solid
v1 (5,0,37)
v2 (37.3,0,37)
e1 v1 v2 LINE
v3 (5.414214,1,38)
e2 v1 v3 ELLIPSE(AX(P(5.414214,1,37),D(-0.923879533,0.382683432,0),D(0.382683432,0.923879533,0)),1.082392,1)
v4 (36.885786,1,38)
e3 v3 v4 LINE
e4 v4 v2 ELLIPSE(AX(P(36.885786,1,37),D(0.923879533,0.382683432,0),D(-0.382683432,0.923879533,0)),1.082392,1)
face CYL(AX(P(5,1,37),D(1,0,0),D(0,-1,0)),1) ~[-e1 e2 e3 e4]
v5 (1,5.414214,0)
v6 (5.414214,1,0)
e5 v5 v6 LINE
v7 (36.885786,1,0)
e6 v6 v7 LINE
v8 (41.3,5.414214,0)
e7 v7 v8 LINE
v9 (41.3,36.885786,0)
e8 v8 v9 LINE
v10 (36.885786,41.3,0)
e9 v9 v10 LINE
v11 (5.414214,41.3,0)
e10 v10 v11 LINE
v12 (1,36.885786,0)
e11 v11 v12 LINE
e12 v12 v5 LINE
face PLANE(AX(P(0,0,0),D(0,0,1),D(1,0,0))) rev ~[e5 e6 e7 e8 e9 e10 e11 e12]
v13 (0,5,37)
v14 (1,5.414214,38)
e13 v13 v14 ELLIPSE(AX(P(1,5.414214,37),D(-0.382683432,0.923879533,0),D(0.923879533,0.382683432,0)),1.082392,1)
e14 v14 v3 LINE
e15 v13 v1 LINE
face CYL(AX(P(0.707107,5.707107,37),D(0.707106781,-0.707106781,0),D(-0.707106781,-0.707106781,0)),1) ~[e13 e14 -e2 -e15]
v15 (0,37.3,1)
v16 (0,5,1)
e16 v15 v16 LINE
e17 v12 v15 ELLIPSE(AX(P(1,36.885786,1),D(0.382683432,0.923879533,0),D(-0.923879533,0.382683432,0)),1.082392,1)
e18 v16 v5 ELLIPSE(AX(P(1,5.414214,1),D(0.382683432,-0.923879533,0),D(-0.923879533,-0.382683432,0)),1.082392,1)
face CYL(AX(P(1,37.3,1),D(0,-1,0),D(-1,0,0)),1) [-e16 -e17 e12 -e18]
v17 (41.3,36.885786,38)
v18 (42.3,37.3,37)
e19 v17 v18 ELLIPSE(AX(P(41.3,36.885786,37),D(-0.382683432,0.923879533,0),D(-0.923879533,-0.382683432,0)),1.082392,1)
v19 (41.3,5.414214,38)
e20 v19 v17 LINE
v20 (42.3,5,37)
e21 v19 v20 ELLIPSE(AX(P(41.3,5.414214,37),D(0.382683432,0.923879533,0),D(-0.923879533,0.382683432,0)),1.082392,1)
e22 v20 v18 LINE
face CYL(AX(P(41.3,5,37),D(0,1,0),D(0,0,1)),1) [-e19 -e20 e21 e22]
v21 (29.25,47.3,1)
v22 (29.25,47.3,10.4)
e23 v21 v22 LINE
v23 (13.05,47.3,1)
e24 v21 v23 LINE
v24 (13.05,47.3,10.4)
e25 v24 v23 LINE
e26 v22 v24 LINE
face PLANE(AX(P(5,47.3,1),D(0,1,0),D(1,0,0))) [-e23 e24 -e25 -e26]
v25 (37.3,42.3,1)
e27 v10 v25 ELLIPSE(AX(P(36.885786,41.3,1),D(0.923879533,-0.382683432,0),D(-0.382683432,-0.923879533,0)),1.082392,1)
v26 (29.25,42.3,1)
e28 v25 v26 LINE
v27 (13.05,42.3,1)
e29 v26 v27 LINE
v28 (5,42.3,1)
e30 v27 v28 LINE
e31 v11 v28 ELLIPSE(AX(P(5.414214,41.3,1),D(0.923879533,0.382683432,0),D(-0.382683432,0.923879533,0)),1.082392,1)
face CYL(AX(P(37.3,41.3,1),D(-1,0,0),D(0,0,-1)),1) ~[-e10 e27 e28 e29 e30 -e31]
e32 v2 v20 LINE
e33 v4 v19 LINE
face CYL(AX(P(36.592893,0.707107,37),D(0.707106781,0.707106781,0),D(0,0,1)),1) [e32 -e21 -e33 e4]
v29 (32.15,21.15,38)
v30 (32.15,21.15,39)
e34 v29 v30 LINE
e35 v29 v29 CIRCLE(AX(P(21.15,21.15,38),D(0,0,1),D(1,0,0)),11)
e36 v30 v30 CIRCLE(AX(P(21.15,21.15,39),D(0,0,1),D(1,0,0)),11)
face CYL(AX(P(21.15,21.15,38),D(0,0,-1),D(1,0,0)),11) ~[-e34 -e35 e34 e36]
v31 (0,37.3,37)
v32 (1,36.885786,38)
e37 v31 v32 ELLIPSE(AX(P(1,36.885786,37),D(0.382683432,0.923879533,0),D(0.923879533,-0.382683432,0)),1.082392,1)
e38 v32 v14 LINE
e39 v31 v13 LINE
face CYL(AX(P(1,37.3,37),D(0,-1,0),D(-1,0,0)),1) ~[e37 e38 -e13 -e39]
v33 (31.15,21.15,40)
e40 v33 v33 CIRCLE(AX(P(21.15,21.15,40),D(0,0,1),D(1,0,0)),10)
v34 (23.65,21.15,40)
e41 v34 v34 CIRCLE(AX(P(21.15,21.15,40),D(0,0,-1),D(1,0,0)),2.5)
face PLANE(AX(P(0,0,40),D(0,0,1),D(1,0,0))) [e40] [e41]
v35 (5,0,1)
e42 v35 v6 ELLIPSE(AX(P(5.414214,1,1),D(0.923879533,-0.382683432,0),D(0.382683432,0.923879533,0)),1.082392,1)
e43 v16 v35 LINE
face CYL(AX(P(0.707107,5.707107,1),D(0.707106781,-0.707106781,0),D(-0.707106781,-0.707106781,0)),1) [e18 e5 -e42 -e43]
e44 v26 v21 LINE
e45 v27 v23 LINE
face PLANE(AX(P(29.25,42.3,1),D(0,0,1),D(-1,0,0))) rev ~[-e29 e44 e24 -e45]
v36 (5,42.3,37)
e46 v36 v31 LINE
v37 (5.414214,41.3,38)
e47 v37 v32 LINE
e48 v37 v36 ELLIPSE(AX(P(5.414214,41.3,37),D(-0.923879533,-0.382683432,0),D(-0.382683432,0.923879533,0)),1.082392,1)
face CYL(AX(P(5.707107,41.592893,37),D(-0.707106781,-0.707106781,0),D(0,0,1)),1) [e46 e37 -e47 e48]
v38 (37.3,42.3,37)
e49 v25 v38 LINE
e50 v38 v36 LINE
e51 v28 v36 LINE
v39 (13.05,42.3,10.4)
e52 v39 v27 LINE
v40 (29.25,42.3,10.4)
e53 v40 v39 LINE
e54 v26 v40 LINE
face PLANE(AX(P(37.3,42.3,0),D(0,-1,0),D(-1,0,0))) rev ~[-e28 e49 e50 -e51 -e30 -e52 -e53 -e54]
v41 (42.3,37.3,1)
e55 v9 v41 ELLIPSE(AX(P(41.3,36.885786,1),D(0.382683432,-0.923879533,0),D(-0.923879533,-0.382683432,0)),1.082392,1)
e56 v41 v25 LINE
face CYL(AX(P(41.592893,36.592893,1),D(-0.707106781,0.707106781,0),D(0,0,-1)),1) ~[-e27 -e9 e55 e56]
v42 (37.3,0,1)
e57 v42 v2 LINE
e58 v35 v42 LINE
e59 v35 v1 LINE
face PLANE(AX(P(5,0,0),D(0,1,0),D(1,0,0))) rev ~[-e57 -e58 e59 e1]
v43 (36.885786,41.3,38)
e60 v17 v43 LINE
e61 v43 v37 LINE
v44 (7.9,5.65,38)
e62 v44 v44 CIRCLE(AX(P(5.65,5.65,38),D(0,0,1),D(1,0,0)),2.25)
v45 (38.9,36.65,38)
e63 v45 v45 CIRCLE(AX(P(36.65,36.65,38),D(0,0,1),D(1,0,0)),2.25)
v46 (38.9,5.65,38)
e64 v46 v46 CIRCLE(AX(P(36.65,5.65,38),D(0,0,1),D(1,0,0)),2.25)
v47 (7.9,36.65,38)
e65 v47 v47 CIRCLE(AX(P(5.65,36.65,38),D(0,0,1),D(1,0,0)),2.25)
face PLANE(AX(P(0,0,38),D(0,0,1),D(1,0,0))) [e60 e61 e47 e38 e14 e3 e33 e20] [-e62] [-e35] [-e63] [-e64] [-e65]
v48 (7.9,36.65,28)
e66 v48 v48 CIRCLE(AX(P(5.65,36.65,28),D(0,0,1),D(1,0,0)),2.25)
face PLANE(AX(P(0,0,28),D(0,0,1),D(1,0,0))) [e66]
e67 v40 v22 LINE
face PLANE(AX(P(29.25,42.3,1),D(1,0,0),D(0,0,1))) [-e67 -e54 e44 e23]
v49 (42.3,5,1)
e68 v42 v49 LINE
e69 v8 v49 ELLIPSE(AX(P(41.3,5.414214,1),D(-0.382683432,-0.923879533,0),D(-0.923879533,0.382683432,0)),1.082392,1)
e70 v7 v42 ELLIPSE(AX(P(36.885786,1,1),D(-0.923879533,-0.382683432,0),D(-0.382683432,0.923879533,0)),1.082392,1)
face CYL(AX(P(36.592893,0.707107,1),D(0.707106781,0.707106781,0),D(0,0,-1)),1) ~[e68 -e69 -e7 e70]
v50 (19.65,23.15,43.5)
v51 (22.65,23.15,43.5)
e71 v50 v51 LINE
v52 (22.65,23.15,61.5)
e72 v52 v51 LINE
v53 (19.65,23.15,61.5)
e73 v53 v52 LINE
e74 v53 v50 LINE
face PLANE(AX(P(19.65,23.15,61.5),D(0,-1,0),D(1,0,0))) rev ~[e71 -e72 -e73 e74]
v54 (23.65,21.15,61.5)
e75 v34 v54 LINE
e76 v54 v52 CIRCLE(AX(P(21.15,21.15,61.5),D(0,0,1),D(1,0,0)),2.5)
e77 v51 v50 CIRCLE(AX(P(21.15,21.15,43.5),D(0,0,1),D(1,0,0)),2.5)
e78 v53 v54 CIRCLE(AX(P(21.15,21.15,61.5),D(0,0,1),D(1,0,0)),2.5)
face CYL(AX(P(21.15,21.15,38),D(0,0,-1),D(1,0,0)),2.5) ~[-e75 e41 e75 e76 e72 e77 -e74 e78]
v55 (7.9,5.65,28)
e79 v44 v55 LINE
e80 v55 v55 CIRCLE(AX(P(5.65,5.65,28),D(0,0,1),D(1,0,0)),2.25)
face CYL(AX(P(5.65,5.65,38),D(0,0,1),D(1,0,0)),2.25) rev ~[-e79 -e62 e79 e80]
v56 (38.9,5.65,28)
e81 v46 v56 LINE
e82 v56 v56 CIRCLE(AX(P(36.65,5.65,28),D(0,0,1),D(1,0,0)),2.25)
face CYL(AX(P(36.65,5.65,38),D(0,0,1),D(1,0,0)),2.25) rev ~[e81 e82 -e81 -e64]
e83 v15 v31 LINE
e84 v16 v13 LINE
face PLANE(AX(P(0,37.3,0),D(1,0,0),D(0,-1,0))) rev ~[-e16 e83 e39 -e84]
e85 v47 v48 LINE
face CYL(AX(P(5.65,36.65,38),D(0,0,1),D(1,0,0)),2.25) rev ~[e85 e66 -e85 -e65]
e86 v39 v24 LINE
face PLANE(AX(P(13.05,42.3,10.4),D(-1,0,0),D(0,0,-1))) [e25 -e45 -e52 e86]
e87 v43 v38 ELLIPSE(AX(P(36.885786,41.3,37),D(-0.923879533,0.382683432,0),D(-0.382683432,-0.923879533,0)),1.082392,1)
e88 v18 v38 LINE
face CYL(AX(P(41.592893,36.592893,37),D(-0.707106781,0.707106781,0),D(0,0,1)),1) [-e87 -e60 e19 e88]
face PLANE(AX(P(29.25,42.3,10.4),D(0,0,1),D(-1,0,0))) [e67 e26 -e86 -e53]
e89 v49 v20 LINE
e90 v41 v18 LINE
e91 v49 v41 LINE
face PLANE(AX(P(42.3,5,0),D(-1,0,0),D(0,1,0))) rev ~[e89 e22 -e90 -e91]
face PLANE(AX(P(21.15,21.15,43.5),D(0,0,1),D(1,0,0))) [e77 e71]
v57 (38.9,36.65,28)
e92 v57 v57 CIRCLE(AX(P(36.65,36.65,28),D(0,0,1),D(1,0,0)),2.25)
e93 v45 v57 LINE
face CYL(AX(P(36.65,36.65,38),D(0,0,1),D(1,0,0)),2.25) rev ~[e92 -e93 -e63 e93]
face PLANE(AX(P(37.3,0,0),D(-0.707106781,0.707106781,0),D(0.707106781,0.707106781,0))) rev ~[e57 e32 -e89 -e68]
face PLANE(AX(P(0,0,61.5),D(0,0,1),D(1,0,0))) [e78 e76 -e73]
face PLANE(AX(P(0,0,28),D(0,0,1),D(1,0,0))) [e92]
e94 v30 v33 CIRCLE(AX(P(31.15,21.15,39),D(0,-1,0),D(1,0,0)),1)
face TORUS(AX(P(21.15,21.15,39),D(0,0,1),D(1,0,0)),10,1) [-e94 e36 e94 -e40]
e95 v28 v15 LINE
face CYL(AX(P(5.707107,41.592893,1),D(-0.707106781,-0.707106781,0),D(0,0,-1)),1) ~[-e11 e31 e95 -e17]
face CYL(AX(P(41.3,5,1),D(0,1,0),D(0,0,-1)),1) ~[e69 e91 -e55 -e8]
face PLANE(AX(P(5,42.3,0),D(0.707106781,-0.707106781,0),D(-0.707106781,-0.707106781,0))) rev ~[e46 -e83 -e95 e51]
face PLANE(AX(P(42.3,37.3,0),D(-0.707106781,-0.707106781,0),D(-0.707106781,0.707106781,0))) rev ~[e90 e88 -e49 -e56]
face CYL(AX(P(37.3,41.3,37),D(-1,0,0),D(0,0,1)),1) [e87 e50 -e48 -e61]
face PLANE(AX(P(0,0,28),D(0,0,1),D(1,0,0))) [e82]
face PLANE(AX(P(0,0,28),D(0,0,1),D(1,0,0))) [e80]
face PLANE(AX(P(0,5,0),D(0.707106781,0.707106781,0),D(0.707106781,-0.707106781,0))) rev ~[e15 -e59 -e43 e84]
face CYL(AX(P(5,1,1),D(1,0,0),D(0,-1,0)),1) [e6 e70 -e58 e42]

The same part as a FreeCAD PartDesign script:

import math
import FreeCAD as App
import Part
import Sketcher
from FreeCAD import Vector
Q = App.Units.Quantity


def edges_at(feature, points):
    """Names of the edges that pass closest to the given points."""
    edges = feature.Shape.Edges
    near = lambda p: min(range(len(edges)), key=lambda i: edges[i].distToShape(Part.Vertex(*p))[0])
    return sorted({f"Edge{near(p) + 1}" for p in points})


def add_polygon(sketch, points):
    """Adds a closed chain of lines whose ends are joined by coincident constraints."""
    first, n = sketch.GeometryCount, len(points)
    for a, b in zip(points, points[1:] + points[:1]):
        sketch.addGeometry(Part.LineSegment(App.Vector(*a, 0), App.Vector(*b, 0)), False)
    for i in range(n):
        sketch.addConstraint(Sketcher.Constraint("Coincident", first + i, 2, first + (i + 1) % n, 1))

doc = App.newDocument("Part")
params = doc.addObject("Spreadsheet::Sheet", "Params")
for row, (alias, value) in enumerate([
    ("pad1_length", "38 mm"),
    ("sketch2_diameter", "4.5 mm"),
    ("pocket1_length", "10 mm"),
    ("sketch3_diameter", "22 mm"),
    ("pad2_length", "2 mm"),
    ("fillet_radius", "1 mm"),
    ("sketch4_diameter", "5 mm"),
    ("pad3_length", "23.5 mm"),
    ("sketch5_radius", "2.5 mm"),
    ("pocket2_length", "18 mm"),
    ("sketch6_width", "16.2 mm"),
    ("sketch6_height", "9.4 mm"),
    ("pad4_length", "5 mm"),
], start=1):
    params.set(f"A{row}", alias)
    params.set(f"B{row}", "=" + value)
    params.setAlias(f"B{row}", alias)

body = doc.addObject("PartDesign::Body", "Body")

sketch1 = body.newObject("Sketcher::SketchObject", "Sketch")
sketch1.AttachmentSupport = (doc.getObject("XY_Plane"), [""])
sketch1.MapMode = "FlatFace"
add_polygon(sketch1, [(0, 5), (5, 0), (37, 0), (42, 5), (42, 37), (37, 42), (5, 42), (0, 37)])
sketch1.addConstraint([
    Sketcher.Constraint("Horizontal", 1),
    Sketcher.Constraint("Vertical", 3),
    Sketcher.Constraint("Horizontal", 5),
    Sketcher.Constraint("Vertical", 7),
    Sketcher.Constraint("PointOnObject", 0, 2, -1),
    Sketcher.Constraint("PointOnObject", 6, 2, -2),
    Sketcher.Constraint("Perpendicular", 0, 2),
    Sketcher.Constraint("Perpendicular", 2, 4),
    Sketcher.Constraint("Perpendicular", 4, 6),
    Sketcher.Constraint("Horizontal", 3, 2, 6, 2),
    Sketcher.Constraint("Horizontal", 2, 2, 7, 2),
    Sketcher.Constraint("Vertical", 1, 2, 4, 2),
    Sketcher.Constraint("Vertical", 0, 2, 5, 2),
    Sketcher.Constraint("Equal", 5, 3),
    Sketcher.Constraint("DistanceX", -1, 1, 0, 2, Q("5 mm")),
    Sketcher.Constraint("DistanceX", -1, 1, 2, 2, Q("42.3 mm")),
])
pad1 = body.newObject("PartDesign::Pad", "Pad")
pad1.Profile = sketch1
pad1.setExpression("Length", "Params.pad1_length")

sketch2 = body.newObject("Sketcher::SketchObject", "Sketch001")
sketch2.AttachmentSupport = (doc.getObject("XY_Plane"), [""])
sketch2.MapMode = "FlatFace"
sketch2.AttachmentOffset = App.Placement(Vector(0, 0, 38), App.Rotation())
sketch2.addGeometry([
    Part.Circle(Vector(5.7, 36.6, 0), Vector(0, 0, 1), 2.2),
    Part.Circle(Vector(36.6, 36.6, 0), Vector(0, 0, 1), 2.2),
    Part.Circle(Vector(36.6, 5.7, 0), Vector(0, 0, 1), 2.2),
    Part.Circle(Vector(5.7, 5.7, 0), Vector(0, 0, 1), 2.2),
], False)
sketch2.addConstraint([
    Sketcher.Constraint("Equal", 0, 1),
    Sketcher.Constraint("Equal", 1, 2),
    Sketcher.Constraint("Equal", 2, 3),
    Sketcher.Constraint("Horizontal", 0, 3, 1, 3),
    Sketcher.Constraint("Horizontal", 2, 3, 3, 3),
    Sketcher.Constraint("Vertical", 1, 3, 2, 3),
    Sketcher.Constraint("Vertical", 0, 3, 3, 3),
    Sketcher.Constraint("Diameter", 0, Q("4.5 mm")),
    Sketcher.Constraint("DistanceX", 0, 3, 1, 3, Q("31 mm")),
    Sketcher.Constraint("DistanceY", 2, 3, 1, 3, Q("31 mm")),
    Sketcher.Constraint("DistanceX", -1, 1, 0, 3, Q("5.65 mm")),
    Sketcher.Constraint("DistanceY", -1, 1, 0, 3, Q("36.65 mm")),
])
sketch2.setExpression("Constraints[7]", "Params.sketch2_diameter")
pocket1 = body.newObject("PartDesign::Pocket", "Pocket")
pocket1.Profile = sketch2
pocket1.setExpression("Length", "Params.pocket1_length")

sketch3 = body.newObject("Sketcher::SketchObject", "Sketch002")
sketch3.AttachmentSupport = (doc.getObject("XY_Plane"), [""])
sketch3.MapMode = "FlatFace"
sketch3.AttachmentOffset = App.Placement(Vector(0, 0, 38), App.Rotation())
sketch3.addGeometry(Part.Circle(Vector(21, 21, 0), Vector(0, 0, 1), 11), False)
sketch3.addConstraint([
    Sketcher.Constraint("Diameter", 0, Q("22 mm")),
    Sketcher.Constraint("DistanceX", -1, 1, 0, 3, Q("21.15 mm")),
    Sketcher.Constraint("DistanceY", -1, 1, 0, 3, Q("21.15 mm")),
])
sketch3.setExpression("Constraints[0]", "Params.sketch3_diameter")
pad2 = body.newObject("PartDesign::Pad", "Pad001")
pad2.Profile = sketch3
pad2.setExpression("Length", "Params.pad2_length")
doc.recompute()

fillet = body.newObject("PartDesign::Fillet", "Fillet")
fillet.Base = (pad2, edges_at(pad2, [
    (10.15, 21.15, 40),
    (21.15, 42.3, 38),
    (39.8, 39.8, 38),
    (42.3, 21.15, 38),
    (39.8, 2.5, 38),
    (21.15, 0, 38),
    (2.5, 2.5, 38),
    (0, 21.15, 38),
    (2.5, 39.8, 38),
    (21.15, 42.3, 0),
    (2.5, 39.8, 0),
    (39.8, 39.8, 0),
    (42.3, 21.15, 0),
    (39.8, 2.5, 0),
    (21.15, 0, 0),
    (0, 21.15, 0),
    (2.5, 2.5, 0),
]))
fillet.setExpression("Radius", "Params.fillet_radius")

sketch4 = body.newObject("Sketcher::SketchObject", "Sketch003")
sketch4.AttachmentSupport = (doc.getObject("XY_Plane"), [""])
sketch4.MapMode = "FlatFace"
sketch4.AttachmentOffset = App.Placement(Vector(0, 0, 38), App.Rotation())
sketch4.addGeometry(Part.Circle(Vector(21.1, 21.1, 0), Vector(0, 0, 1), 2.5), False)
sketch4.addConstraint([
    Sketcher.Constraint("Diameter", 0, Q("5 mm")),
    Sketcher.Constraint("DistanceX", -1, 1, 0, 3, Q("21.15 mm")),
    Sketcher.Constraint("DistanceY", -1, 1, 0, 3, Q("21.15 mm")),
])
sketch4.setExpression("Constraints[0]", "Params.sketch4_diameter")
pad3 = body.newObject("PartDesign::Pad", "Pad002")
pad3.Profile = sketch4
pad3.setExpression("Length", "Params.pad3_length")

sketch5 = body.newObject("Sketcher::SketchObject", "Sketch004")
sketch5.AttachmentSupport = (doc.getObject("XY_Plane"), [""])
sketch5.MapMode = "FlatFace"
sketch5.AttachmentOffset = App.Placement(Vector(0, 0, 61.5), App.Rotation())
sketch5.addGeometry([
    Part.LineSegment(Vector(19.6, 23.1, 0), Vector(22.6, 23.1, 0)),
    Part.ArcOfCircle(Part.Circle(Vector(21.1, 21.1, 0), Vector(0, 0, 1), 2.5), math.radians(53), math.radians(127)),
], False)
sketch5.addConstraint([
    Sketcher.Constraint("Coincident", 0, 1, 1, 2),
    Sketcher.Constraint("Coincident", 1, 1, 0, 2),
    Sketcher.Constraint("Horizontal", 0),
    Sketcher.Constraint("DistanceY", 1, 3, 0, 1, Q("2 mm")),
    Sketcher.Constraint("Radius", 1, Q("2.5 mm")),
    Sketcher.Constraint("DistanceX", -1, 1, 1, 3, Q("21.15 mm")),
    Sketcher.Constraint("DistanceY", -1, 1, 1, 3, Q("21.15 mm")),
])
sketch5.setExpression("Constraints[4]", "Params.sketch5_radius")
pocket2 = body.newObject("PartDesign::Pocket", "Pocket001")
pocket2.Profile = sketch5
pocket2.setExpression("Length", "Params.pocket2_length")

sketch6 = body.newObject("Sketcher::SketchObject", "Sketch005")
sketch6.AttachmentSupport = (doc.getObject("XZ_Plane"), [""])
sketch6.MapMode = "FlatFace"
sketch6.AttachmentOffset = App.Placement(Vector(0, 0, -42.3), App.Rotation())
add_polygon(sketch6, [(29, 10), (29, 1), (13, 1), (13, 10)])
sketch6.addConstraint([
    Sketcher.Constraint("Vertical", 0),
    Sketcher.Constraint("Horizontal", 1),
    Sketcher.Constraint("Vertical", 2),
    Sketcher.Constraint("Horizontal", 3),
    Sketcher.Constraint("DistanceX", 1, 2, 1, 1, Q("16.2 mm")),
    Sketcher.Constraint("DistanceY", 0, 2, 0, 1, Q("9.4 mm")),
    Sketcher.Constraint("DistanceY", -1, 1, 0, 2, Q("1 mm")),
    Sketcher.Constraint("DistanceX", -1, 1, 0, 2, Q("29.25 mm")),
])
sketch6.setExpression("Constraints[8]", "Params.sketch6_width")
sketch6.setExpression("Constraints[9]", "Params.sketch6_height")
pad4 = body.newObject("PartDesign::Pad", "Pad003")
pad4.Profile = sketch6
pad4.setExpression("Length", "Params.pad4_length")
pad4.Reversed = True

doc.recompute()
